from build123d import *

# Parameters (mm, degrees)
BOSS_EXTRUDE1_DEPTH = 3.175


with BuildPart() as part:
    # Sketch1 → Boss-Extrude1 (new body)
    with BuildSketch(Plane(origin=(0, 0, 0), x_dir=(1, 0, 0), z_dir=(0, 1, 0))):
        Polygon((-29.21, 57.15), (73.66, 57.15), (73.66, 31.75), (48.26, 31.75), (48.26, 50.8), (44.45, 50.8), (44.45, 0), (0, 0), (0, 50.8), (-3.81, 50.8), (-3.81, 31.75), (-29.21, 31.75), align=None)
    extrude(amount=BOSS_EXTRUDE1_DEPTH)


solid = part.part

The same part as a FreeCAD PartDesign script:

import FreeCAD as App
import Part
import Sketcher
from FreeCAD import Vector
Q = App.Units.Quantity

doc = App.newDocument("Part")
params = doc.addObject("Spreadsheet::Sheet", "Params")
for row, (alias, value) in enumerate([
    ("sketch1_width", "1 in"),
    ("sketch1_height", "2 in"),
    ("sketch1_width2", "4.05 in"),
    ("sketch1_width3", "0.15 in"),
    ("sketch1_height2", "0.75 in"),
    ("pad1_length", "0.125 in"),
], start=1):
    params.set(f"A{row}", alias)
    params.set(f"B{row}", "=" + value)
    params.setAlias(f"B{row}", alias)

body = doc.addObject("PartDesign::Body", "Body")

# Sketch on XZ plane
sketch1 = body.newObject("Sketcher::SketchObject", "Sketch")
sketch1.AttachmentSupport = (doc.getObject("XZ_Plane"), [""])
sketch1.MapMode = "FlatFace"
sketch1.addGeometry([
    Part.LineSegment(Vector(73.66, -57.15, 0), Vector(-29.21, -57.15, 0)),  # 0
    Part.LineSegment(Vector(-29.21, -57.15, 0), Vector(-29.21, -31.75, 0)),  # 1
    Part.LineSegment(Vector(-29.21, -31.75, 0), Vector(-3.81, -31.75, 0)),  # 2
    Part.LineSegment(Vector(-3.81, -31.75, 0), Vector(-3.81, -50.8, 0)),  # 3
    Part.LineSegment(Vector(-3.81, -50.8, 0), Vector(0, -50.8, 0)),  # 4
    Part.LineSegment(Vector(0, -50.8, 0), Vector(0, 0, 0)),  # 5
    Part.LineSegment(Vector(0, 0, 0), Vector(44.45, 0, 0)),  # 6
    Part.LineSegment(Vector(44.45, 0, 0), Vector(44.45, -50.8, 0)),  # 7
    Part.LineSegment(Vector(44.45, -50.8, 0), Vector(48.26, -50.8, 0)),  # 8
    Part.LineSegment(Vector(48.26, -50.8, 0), Vector(48.26, -31.75, 0)),  # 9
    Part.LineSegment(Vector(48.26, -31.75, 0), Vector(73.66, -31.75, 0)),  # 10
    Part.LineSegment(Vector(73.66, -31.75, 0), Vector(73.66, -57.15, 0)),  # 11
], False)
sketch1.addConstraint([
    Sketcher.Constraint("Coincident", 0, 2, 1, 1),
    Sketcher.Constraint("Coincident", 1, 2, 2, 1),
    Sketcher.Constraint("Coincident", 2, 2, 3, 1),
    Sketcher.Constraint("Coincident", 3, 2, 4, 1),
    Sketcher.Constraint("Coincident", 4, 2, 5, 1),
    Sketcher.Constraint("Coincident", 5, 2, 6, 1),
    Sketcher.Constraint("Coincident", 6, 2, 7, 1),
    Sketcher.Constraint("Coincident", 7, 2, 8, 1),
    Sketcher.Constraint("Coincident", 8, 2, 9, 1),
    Sketcher.Constraint("Coincident", 9, 2, 10, 1),
    Sketcher.Constraint("Coincident", 10, 2, 11, 1),
    Sketcher.Constraint("Coincident", 11, 2, 0, 1),
    Sketcher.Constraint("Horizontal", 0),
    Sketcher.Constraint("Vertical", 1),
    Sketcher.Constraint("Horizontal", 2),
    Sketcher.Constraint("Vertical", 3),
    Sketcher.Constraint("Horizontal", 4),
    Sketcher.Constraint("Vertical", 5),
    Sketcher.Constraint("Horizontal", 6),
    Sketcher.Constraint("Vertical", 7),
    Sketcher.Constraint("Horizontal", 8),
    Sketcher.Constraint("Vertical", 9),
    Sketcher.Constraint("Horizontal", 10),
    Sketcher.Constraint("Vertical", 11),
    Sketcher.Constraint("Coincident", 5, 2, -1, 1),
    Sketcher.Constraint("Horizontal", 4, 2, 7, 2),
    Sketcher.Constraint("Horizontal", 2, 2, 9, 2),
    Sketcher.Constraint("Equal", 4, 8),
    Sketcher.Constraint("Equal", 2, 10),
    Sketcher.Constraint("Equal", 10, 1),
    Sketcher.Constraint("DistanceX", 2, 1, 2, 2, Q("1 in")),
    Sketcher.Constraint("DistanceY", 5, 1, 5, 2, Q("2 in")),
    Sketcher.Constraint("DistanceX", 0, 2, 0, 1, Q("4.05 in")),
    Sketcher.Constraint("DistanceX", 4, 1, 4, 2, Q("0.15 in")),
    Sketcher.Constraint("DistanceY", 3, 2, 3, 1, Q("0.75 in")),
])
sketch1.setExpression("Constraints[30]", "Params.sketch1_width")
sketch1.setExpression("Constraints[31]", "Params.sketch1_height")
sketch1.setExpression("Constraints[32]", "Params.sketch1_width2")
sketch1.setExpression("Constraints[33]", "Params.sketch1_width3")
sketch1.setExpression("Constraints[34]", "Params.sketch1_height2")
pad1 = body.newObject("PartDesign::Pad", "Pad")
pad1.Profile = sketch1
pad1.setExpression("Length", "Params.pad1_length")
pad1.Reversed = True

doc.recompute()
